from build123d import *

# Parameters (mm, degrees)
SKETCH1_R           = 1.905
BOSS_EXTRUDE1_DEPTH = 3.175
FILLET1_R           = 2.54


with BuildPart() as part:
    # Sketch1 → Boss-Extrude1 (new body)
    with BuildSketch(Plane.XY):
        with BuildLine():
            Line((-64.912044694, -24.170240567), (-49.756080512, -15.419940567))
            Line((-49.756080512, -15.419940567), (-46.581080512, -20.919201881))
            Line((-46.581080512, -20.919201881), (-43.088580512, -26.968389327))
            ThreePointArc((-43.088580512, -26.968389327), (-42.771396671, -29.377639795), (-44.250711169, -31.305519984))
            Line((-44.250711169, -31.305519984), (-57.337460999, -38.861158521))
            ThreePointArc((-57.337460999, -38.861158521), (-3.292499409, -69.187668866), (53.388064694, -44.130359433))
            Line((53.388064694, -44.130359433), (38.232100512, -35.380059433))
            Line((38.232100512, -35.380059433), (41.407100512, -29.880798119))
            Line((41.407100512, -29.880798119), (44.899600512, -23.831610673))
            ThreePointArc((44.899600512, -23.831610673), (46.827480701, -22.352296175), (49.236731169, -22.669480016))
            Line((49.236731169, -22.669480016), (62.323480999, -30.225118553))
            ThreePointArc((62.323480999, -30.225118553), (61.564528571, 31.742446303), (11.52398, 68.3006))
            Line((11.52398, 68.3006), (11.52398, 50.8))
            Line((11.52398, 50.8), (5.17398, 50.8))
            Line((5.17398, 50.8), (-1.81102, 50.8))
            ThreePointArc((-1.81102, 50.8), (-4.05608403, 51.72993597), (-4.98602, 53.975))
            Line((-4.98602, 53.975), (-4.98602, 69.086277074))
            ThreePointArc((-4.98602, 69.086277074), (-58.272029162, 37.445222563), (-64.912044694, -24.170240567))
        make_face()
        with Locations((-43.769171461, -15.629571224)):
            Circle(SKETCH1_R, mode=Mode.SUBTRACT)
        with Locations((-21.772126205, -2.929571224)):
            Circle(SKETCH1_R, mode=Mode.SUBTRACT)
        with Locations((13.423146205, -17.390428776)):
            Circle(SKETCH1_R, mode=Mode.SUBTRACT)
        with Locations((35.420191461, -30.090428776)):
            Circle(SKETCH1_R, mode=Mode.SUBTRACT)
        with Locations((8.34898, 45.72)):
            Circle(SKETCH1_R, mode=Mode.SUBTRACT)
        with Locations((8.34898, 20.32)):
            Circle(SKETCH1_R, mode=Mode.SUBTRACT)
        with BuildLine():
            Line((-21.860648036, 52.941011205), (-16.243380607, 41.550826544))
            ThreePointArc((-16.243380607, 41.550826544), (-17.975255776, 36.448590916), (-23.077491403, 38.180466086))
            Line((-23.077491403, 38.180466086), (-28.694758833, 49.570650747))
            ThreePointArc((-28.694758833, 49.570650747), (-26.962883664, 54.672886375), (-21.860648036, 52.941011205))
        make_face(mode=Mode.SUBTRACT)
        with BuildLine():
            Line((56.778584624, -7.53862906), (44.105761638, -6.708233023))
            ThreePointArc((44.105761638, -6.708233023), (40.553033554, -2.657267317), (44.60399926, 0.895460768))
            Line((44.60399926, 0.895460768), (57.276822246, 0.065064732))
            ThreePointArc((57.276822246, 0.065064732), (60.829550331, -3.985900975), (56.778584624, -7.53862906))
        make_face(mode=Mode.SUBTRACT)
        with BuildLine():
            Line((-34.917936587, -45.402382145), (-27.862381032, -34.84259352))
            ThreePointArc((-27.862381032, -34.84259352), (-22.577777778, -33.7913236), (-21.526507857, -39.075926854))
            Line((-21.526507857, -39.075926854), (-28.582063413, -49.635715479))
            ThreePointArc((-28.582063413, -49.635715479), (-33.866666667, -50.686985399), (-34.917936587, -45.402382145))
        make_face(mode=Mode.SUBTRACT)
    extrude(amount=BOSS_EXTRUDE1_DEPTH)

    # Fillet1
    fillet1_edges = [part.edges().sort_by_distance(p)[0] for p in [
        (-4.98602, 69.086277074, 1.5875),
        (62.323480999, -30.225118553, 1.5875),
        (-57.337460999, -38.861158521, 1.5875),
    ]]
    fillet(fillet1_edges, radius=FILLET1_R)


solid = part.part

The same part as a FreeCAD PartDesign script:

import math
import FreeCAD as App
import Part
import Sketcher

V = App.Vector
Q = App.Units.Quantity


def edges_at(feature, points):
    """Names of the edges that pass closest to the given points."""
    edges = feature.Shape.Edges
    near = lambda p: min(range(len(edges)), key=lambda i: edges[i].distToShape(Part.Vertex(*p))[0])
    return sorted({f"Edge{near(p) + 1}" for p in points})

doc = App.newDocument("Part")
body = doc.addObject("PartDesign::Body", "Body")

# Sketch on XY plane
sketch1 = body.newObject("Sketcher::SketchObject", "Sketch")
sketch1.AttachmentSupport = (doc.getObject("XY_Plane"), [""])
sketch1.MapMode = "FlatFace"
sketch1.addGeometry([
    Part.LineSegment(V(-64.912045, -24.170241, 0), V(-49.756081, -15.419941, 0)),  # 0
    Part.LineSegment(V(-49.756081, -15.419941, 0), V(-46.581081, -20.919202, 0)),  # 1
    Part.LineSegment(V(-46.581081, -20.919202, 0), V(-43.088581, -26.968389, 0)),  # 2
    Part.ArcOfCircle(Part.Circle(V(-45.838211, -28.555889, 0), V(0, 0, 1), 3.175), math.radians(-60), math.radians(30)),  # 3
    Part.LineSegment(V(-44.250711, -31.30552, 0), V(-57.337461, -38.861159, 0)),  # 4
    Part.ArcOfCircle(Part.Circle(V(0, 0, 0), V(0, 0, 1), 69.265966), math.radians(-145.872068), math.radians(-39.576999)),  # 5
    Part.LineSegment(V(53.388065, -44.130359, 0), V(38.232101, -35.380059, 0)),  # 6
    Part.LineSegment(V(38.232101, -35.380059, 0), V(41.407101, -29.880798, 0)),  # 7
    Part.LineSegment(V(41.407101, -29.880798, 0), V(44.899601, -23.831611, 0)),  # 8
    Part.ArcOfCircle(Part.Circle(V(47.649231, -25.419111, 0), V(0, 0, 1), 3.175), math.radians(60), math.radians(150)),  # 9
    Part.LineSegment(V(49.236731, -22.66948, 0), V(62.323481, -30.225119, 0)),  # 10
    Part.ArcOfCircle(Part.Circle(V(0, 0, 0), V(0, 0, 1), 69.265966), math.radians(-25.872068), math.radians(80.423001)),  # 11
    Part.LineSegment(V(11.52398, 68.3006, 0), V(11.52398, 50.8, 0)),  # 12
    Part.LineSegment(V(11.52398, 50.8, 0), V(-1.81102, 50.8, 0)),  # 13
    Part.ArcOfCircle(Part.Circle(V(-1.81102, 53.975, 0), V(0, 0, 1), 3.175), math.radians(-180), math.radians(-90)),  # 14
    Part.LineSegment(V(-4.98602, 53.975, 0), V(-4.98602, 69.086277, 0)),  # 15
    Part.ArcOfCircle(Part.Circle(V(0, 0, 0), V(0, 0, 1), 69.265966), math.radians(94.127932), math.radians(200.423001)),  # 16
    Part.ArcOfCircle(Part.Circle(V(-31.75, -47.519049, 0), V(0, 0, 1), 3.81), math.radians(146.251011), math.radians(326.251011)),  # 17
    Part.LineSegment(V(-34.917937, -45.402382, 0), V(-27.862381, -34.842594, 0)),  # 18
    Part.ArcOfCircle(Part.Circle(V(-24.694444, -36.95926, 0), V(0, 0, 1), 3.81), math.radians(-33.748989), math.radians(146.251011)),  # 19
    Part.LineSegment(V(-21.526508, -39.075927, 0), V(-28.582063, -49.635715, 0)),  # 20
    Part.Circle(V(-43.769171, -15.629571, 0), V(0, 0, 1), 1.905),  # 21
    Part.Circle(V(-21.772126, -2.929571, 0), V(0, 0, 1), 1.905),  # 22
    Part.Circle(V(35.420191, -30.090429, 0), V(0, 0, 1), 1.905),  # 23
    Part.Circle(V(13.423146, -17.390429, 0), V(0, 0, 1), 1.905),  # 24
    Part.ArcOfCircle(Part.Circle(V(57.027703, -3.736782, 0), V(0, 0, 1), 3.81), math.radians(-93.748989), math.radians(86.251011)),  # 25
    Part.LineSegment(V(56.778585, -7.538629, 0), V(44.105762, -6.708233, 0)),  # 26
    Part.ArcOfCircle(Part.Circle(V(44.35488, -2.906386, 0), V(0, 0, 1), 3.81), math.radians(86.251011), math.radians(266.251011)),  # 27
    Part.LineSegment(V(44.603999, 0.895461, 0), V(57.276822, 0.065065, 0)),  # 28
    Part.ArcOfCircle(Part.Circle(V(-25.277703, 51.255831, 0), V(0, 0, 1), 3.81), math.radians(26.251011), math.radians(206.251011)),  # 29
    Part.LineSegment(V(-21.860648, 52.941011, 0), V(-16.243381, 41.550827, 0)),  # 30
    Part.ArcOfCircle(Part.Circle(V(-19.660436, 39.865646, 0), V(0, 0, 1), 3.81), math.radians(-153.748989), math.radians(26.251011)),  # 31
    Part.LineSegment(V(-23.077491, 38.180466, 0), V(-28.694759, 49.570651, 0)),  # 32
    Part.Circle(V(8.34898, 20.32, 0), V(0, 0, 1), 1.905),  # 33
    Part.Circle(V(8.34898, 45.72, 0), V(0, 0, 1), 1.905),  # 34
], False)
sketch1.addConstraint([
    Sketcher.Constraint("Coincident", 0, 2, 1, 1),
    Sketcher.Constraint("Coincident", 1, 2, 2, 1),
    Sketcher.Constraint("Tangent", 2, 2, 3, 2),
    Sketcher.Constraint("Tangent", 3, 1, 4, 1),
    Sketcher.Constraint("Coincident", 4, 2, 5, 1),
    Sketcher.Constraint("Coincident", 5, 2, 6, 1),
    Sketcher.Constraint("Coincident", 6, 2, 7, 1),
    Sketcher.Constraint("Coincident", 7, 2, 8, 1),
    Sketcher.Constraint("Tangent", 8, 2, 9, 2),
    Sketcher.Constraint("Tangent", 9, 1, 10, 1),
    Sketcher.Constraint("Coincident", 10, 2, 11, 1),
    Sketcher.Constraint("Coincident", 11, 2, 12, 1),
    Sketcher.Constraint("Coincident", 12, 2, 13, 1),
    Sketcher.Constraint("Tangent", 13, 2, 14, 2),
    Sketcher.Constraint("Tangent", 14, 1, 15, 1),
    Sketcher.Constraint("Coincident", 15, 2, 16, 1),
    Sketcher.Constraint("Coincident", 16, 2, 0, 1),
    Sketcher.Constraint("Tangent", 17, 1, 18, 1),
    Sketcher.Constraint("Tangent", 18, 2, 19, 2),
    Sketcher.Constraint("Tangent", 19, 1, 20, 1),
    Sketcher.Constraint("Tangent", 20, 2, 17, 2),
    Sketcher.Constraint("Tangent", 25, 1, 26, 1),
    Sketcher.Constraint("Tangent", 26, 2, 27, 2),
    Sketcher.Constraint("Tangent", 27, 1, 28, 1),
    Sketcher.Constraint("Tangent", 28, 2, 25, 2),
    Sketcher.Constraint("Tangent", 29, 1, 30, 1),
    Sketcher.Constraint("Tangent", 30, 2, 31, 2),
    Sketcher.Constraint("Tangent", 31, 1, 32, 1),
    Sketcher.Constraint("Tangent", 32, 2, 29, 2),
    Sketcher.Constraint("Vertical", 12),
    Sketcher.Constraint("Horizontal", 13),
    Sketcher.Constraint("Vertical", 15),
    Sketcher.Constraint("Coincident", 5, 3, -1, 1),
    Sketcher.Constraint("Coincident", 11, 3, -1, 1),
    Sketcher.Constraint("Coincident", 16, 3, -1, 1),
    Sketcher.Constraint("Equal", 3, 9),
    Sketcher.Constraint("Equal", 5, 11),
    Sketcher.Constraint("Equal", 9, 14),
    Sketcher.Constraint("Equal", 11, 16),
    Sketcher.Constraint("Equal", 17, 19),
    Sketcher.Constraint("Equal", 21, 22),
    Sketcher.Constraint("Equal", 22, 23),
    Sketcher.Constraint("Equal", 23, 24),
    Sketcher.Constraint("Equal", 19, 25),
    Sketcher.Constraint("Equal", 25, 27),
    Sketcher.Constraint("Equal", 27, 29),
    Sketcher.Constraint("Equal", 29, 31),
    Sketcher.Constraint("Equal", 24, 33),
    Sketcher.Constraint("Equal", 33, 34),
    Sketcher.Constraint("Perpendicular", 0, 1),
    Sketcher.Constraint("Parallel", 1, 2),
    Sketcher.Constraint("Perpendicular", 2, 4),
    Sketcher.Constraint("Perpendicular", 6, 7),
    Sketcher.Constraint("Parallel", 7, 8),
    Sketcher.Constraint("Perpendicular", 8, 10),
    Sketcher.Constraint("Vertical", 33, 3, 34, 3),
    Sketcher.Constraint("Equal", 0, 6),
    Sketcher.Constraint("Equal", 1, 7),
    Sketcher.Constraint("Equal", 2, 8),
    Sketcher.Constraint("Equal", 4, 10),
    Sketcher.Constraint("Equal", 20, 26),
    Sketcher.Constraint("Equal", 28, 30),
    Sketcher.Constraint("Diameter", 21, Q("0.15 in")),
    Sketcher.Constraint("Radius", 17, Q("0.15 in")),
    Sketcher.Constraint("DistanceY", -1, 1, 12, 2, Q("2 in")),
    Sketcher.Constraint("Angle", 0, Q("30 deg")),
    Sketcher.Constraint("Angle", 6, Q("150 deg")),
    Sketcher.Constraint("Radius", 3, Q("0.125 in")),
    Sketcher.Constraint("DistanceY", 33, 3, 34, 3, Q("1 in")),
    Sketcher.Constraint("Distance", 18, Q("0.5 in")),
    Sketcher.Constraint("DistanceY", -1, 1, 33, 3, Q("0.8 in")),
    Sketcher.Constraint("DistanceY", 21, 3, 22, 3, Q("0.5 in")),
    Sketcher.Constraint("DistanceY", 23, 3, 24, 3, Q("0.5 in")),
    Sketcher.Constraint("DistanceX", 14, 3, 33, 3, Q("0.4 in")),
    Sketcher.Constraint("Distance", 1, Q("0.25 in")),
    Sketcher.Constraint("DistanceX", 13, 2, 13, 1, Q("0.525 in")),
    Sketcher.Constraint("DistanceY", 12, 2, 12, 1, Q("0.689 in")),
    Sketcher.Constraint("DistanceX", 17, 3, -1, 1, Q("1.25 in")),
    Sketcher.Constraint("Distance", 0, Q("0.689 in")),
    Sketcher.Constraint("Distance", 2, Q("0.275 in")),
    Sketcher.Constraint("DistanceX", 14, 3, -1, 1, Q("0.0713 in")),
    Sketcher.Constraint("DistanceY", 1, 2, -1, 1, Q("20.919202 mm")),
    Sketcher.Constraint("DistanceX", -1, 1, 27, 1, Q("44.603999 mm")),
    Sketcher.Constraint("DistanceX", 2, 2, 18, 2, Q("15.226199 mm")),
    Sketcher.Constraint("DistanceY", 17, 3, -1, 1, Q("47.519049 mm")),
    Sketcher.Constraint("DistanceX", 21, 3, -1, 1, Q("43.769171 mm")),
    Sketcher.Constraint("DistanceY", 21, 3, -1, 1, Q("15.629571 mm")),
    Sketcher.Constraint("DistanceX", -1, 1, 23, 3, Q("35.420191 mm")),
    Sketcher.Constraint("DistanceY", 23, 3, -1, 1, Q("30.090429 mm")),
    Sketcher.Constraint("DistanceX", -1, 1, 27, 3, Q("44.35488 mm")),
    Sketcher.Constraint("DistanceY", -1, 1, 29, 3, Q("51.255831 mm")),
    Sketcher.Constraint("DistanceY", 25, 1, -1, 1, Q("7.538629 mm")),
    Sketcher.Constraint("DistanceX", 29, 1, -1, 1, Q("21.860648 mm")),
    Sketcher.Constraint("DistanceY", -1, 1, 29, 1, Q("52.941011 mm")),
    Sketcher.Constraint("DistanceX", 19, 3, 22, 3, Q("2.922318 mm")),
    Sketcher.Constraint("DistanceX", 24, 3, 5, 2, Q("39.964918 mm")),
])
pad1 = body.newObject("PartDesign::Pad", "Pad")
pad1.Profile = sketch1
pad1.Length = Q("0.125 in")
doc.recompute()

fillet = body.newObject("PartDesign::Fillet", "Fillet")
fillet.Base = (pad1, edges_at(pad1, [(-4.986, 69.086, 1.587), (62.323, -30.225, 1.587), (-57.337, -38.861, 1.587)]))
fillet.Radius = Q("0.1 in")

doc.recompute()
